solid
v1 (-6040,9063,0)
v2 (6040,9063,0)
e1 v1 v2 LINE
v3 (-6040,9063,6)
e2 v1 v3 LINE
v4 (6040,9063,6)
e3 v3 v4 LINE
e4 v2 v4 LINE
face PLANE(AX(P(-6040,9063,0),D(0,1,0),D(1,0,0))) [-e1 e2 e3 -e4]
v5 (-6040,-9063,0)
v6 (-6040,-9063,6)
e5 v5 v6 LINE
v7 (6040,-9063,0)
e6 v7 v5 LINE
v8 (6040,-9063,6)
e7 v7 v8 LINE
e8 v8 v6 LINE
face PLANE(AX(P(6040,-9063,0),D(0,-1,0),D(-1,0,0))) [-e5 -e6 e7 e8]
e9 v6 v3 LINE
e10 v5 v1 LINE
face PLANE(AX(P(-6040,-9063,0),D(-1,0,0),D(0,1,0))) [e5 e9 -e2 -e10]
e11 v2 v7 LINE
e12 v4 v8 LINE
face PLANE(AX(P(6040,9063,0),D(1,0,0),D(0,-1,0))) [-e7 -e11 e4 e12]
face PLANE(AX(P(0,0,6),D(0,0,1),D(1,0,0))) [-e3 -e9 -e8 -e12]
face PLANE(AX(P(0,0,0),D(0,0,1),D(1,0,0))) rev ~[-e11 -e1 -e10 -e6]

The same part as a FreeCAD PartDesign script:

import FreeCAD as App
import Part
import Sketcher

V = App.Vector
Q = App.Units.Quantity


def add_polygon(sketch, points):
    """Adds a closed chain of lines whose ends are joined by coincident constraints."""
    first, n = sketch.GeometryCount, len(points)
    for a, b in zip(points, points[1:] + points[:1]):
        sketch.addGeometry(Part.LineSegment(App.Vector(*a, 0), App.Vector(*b, 0)), False)
    for i in range(n):
        sketch.addConstraint(Sketcher.Constraint("Coincident", first + i, 2, first + (i + 1) % n, 1))

doc = App.newDocument("Part")
body = doc.addObject("PartDesign::Body", "Body")

sketch1 = doc.addObject("Sketcher::SketchObject", "Sketch")
body.addObject(sketch1)
sketch1.AttachmentSupport = (doc.XY_Plane, [""])
sketch1.MapMode = "FlatFace"
add_polygon(sketch1, [(-6040, -9063), (6040, -9063), (6040, 9063), (-6040, 9063)])
sketch1.addConstraint([
    Sketcher.Constraint("Horizontal", 0),
    Sketcher.Constraint("Vertical", 1),
    Sketcher.Constraint("Horizontal", 2),
    Sketcher.Constraint("Vertical", 3),
    Sketcher.Constraint("Symmetric", 0, 2, 2, 2, -1, 1),
    Sketcher.Constraint("DistanceX", 0, 1, 0, 2, Q("12080 mm")),
    Sketcher.Constraint("DistanceY", 1, 1, 1, 2, Q("18126 mm")),
])
pad1 = doc.addObject("PartDesign::Pad", "Pad")
body.addObject(pad1)
pad1.Profile = sketch1
pad1.Length = 6

doc.recompute()
